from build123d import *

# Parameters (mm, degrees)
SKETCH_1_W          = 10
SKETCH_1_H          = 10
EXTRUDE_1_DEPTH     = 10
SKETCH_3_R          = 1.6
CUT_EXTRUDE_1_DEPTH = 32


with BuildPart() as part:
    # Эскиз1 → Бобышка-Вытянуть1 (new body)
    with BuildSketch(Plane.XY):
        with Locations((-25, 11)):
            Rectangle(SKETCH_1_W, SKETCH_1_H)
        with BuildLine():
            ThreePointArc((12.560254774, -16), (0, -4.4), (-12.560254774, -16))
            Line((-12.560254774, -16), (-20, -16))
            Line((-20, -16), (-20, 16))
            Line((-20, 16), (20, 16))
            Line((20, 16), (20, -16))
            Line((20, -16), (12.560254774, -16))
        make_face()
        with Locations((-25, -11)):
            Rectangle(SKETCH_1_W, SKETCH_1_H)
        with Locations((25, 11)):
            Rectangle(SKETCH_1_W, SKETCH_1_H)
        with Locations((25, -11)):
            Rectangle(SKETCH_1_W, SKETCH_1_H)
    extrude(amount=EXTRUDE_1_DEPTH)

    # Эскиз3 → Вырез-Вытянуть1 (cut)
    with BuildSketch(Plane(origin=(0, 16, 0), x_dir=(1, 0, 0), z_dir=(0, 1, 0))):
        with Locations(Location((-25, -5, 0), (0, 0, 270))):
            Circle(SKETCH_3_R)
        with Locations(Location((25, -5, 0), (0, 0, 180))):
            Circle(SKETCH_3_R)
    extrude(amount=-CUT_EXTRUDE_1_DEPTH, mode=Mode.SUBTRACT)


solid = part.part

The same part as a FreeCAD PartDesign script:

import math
import FreeCAD as App
import Part
import Sketcher

V = App.Vector

doc = App.newDocument("Part")
body = doc.addObject("PartDesign::Body", "Body")

sketch1 = body.newObject("Sketcher::SketchObject", "Sketch")
sketch1.AttachmentSupport = (doc.getObject("XY_Plane"), [""])
sketch1.MapMode = "FlatFace"
sketch1.addGeometry(Part.LineSegment(V(-30, 16, 0), V(-30, 6, 0)), False)
sketch1.addGeometry(Part.LineSegment(V(-30, 6, 0), V(-20, 6, 0)), False)
sketch1.addGeometry(Part.LineSegment(V(-20, 6, 0), V(-20, -6, 0)), False)
sketch1.addGeometry(Part.LineSegment(V(-20, -6, 0), V(-30, -6, 0)), False)
sketch1.addGeometry(Part.LineSegment(V(-30, -6, 0), V(-30, -16, 0)), False)
sketch1.addGeometry(Part.LineSegment(V(-30, -16, 0), V(-13, -16, 0)), False)
sketch1.addGeometry(Part.ArcOfCircle(Part.Circle(V(0, -17, 0), V(0, 0, 1), 13), math.radians(5), math.radians(175)), False)
sketch1.addGeometry(Part.LineSegment(V(13, -16, 0), V(30, -16, 0)), False)
sketch1.addGeometry(Part.LineSegment(V(30, -16, 0), V(30, -6, 0)), False)
sketch1.addGeometry(Part.LineSegment(V(30, -6, 0), V(20, -6, 0)), False)
sketch1.addGeometry(Part.LineSegment(V(20, -6, 0), V(20, 6, 0)), False)
sketch1.addGeometry(Part.LineSegment(V(20, 6, 0), V(30, 6, 0)), False)
sketch1.addGeometry(Part.LineSegment(V(30, 6, 0), V(30, 16, 0)), False)
sketch1.addGeometry(Part.LineSegment(V(30, 16, 0), V(-30, 16, 0)), False)
sketch1.addConstraint(Sketcher.Constraint("Coincident", 0, 2, 1, 1))
sketch1.addConstraint(Sketcher.Constraint("Coincident", 1, 2, 2, 1))
sketch1.addConstraint(Sketcher.Constraint("Coincident", 2, 2, 3, 1))
sketch1.addConstraint(Sketcher.Constraint("Coincident", 3, 2, 4, 1))
sketch1.addConstraint(Sketcher.Constraint("Coincident", 4, 2, 5, 1))
sketch1.addConstraint(Sketcher.Constraint("Coincident", 5, 2, 6, 2))
sketch1.addConstraint(Sketcher.Constraint("Coincident", 6, 1, 7, 1))
sketch1.addConstraint(Sketcher.Constraint("Coincident", 7, 2, 8, 1))
sketch1.addConstraint(Sketcher.Constraint("Coincident", 8, 2, 9, 1))
sketch1.addConstraint(Sketcher.Constraint("Coincident", 9, 2, 10, 1))
sketch1.addConstraint(Sketcher.Constraint("Coincident", 10, 2, 11, 1))
sketch1.addConstraint(Sketcher.Constraint("Coincident", 11, 2, 12, 1))
sketch1.addConstraint(Sketcher.Constraint("Coincident", 12, 2, 13, 1))
sketch1.addConstraint(Sketcher.Constraint("Coincident", 13, 2, 0, 1))
sketch1.addConstraint(Sketcher.Constraint("Vertical", 0))
sketch1.addConstraint(Sketcher.Constraint("Horizontal", 1))
sketch1.addConstraint(Sketcher.Constraint("Vertical", 2))
sketch1.addConstraint(Sketcher.Constraint("Horizontal", 3))
sketch1.addConstraint(Sketcher.Constraint("Vertical", 4))
sketch1.addConstraint(Sketcher.Constraint("Horizontal", 5))
sketch1.addConstraint(Sketcher.Constraint("Horizontal", 7))
sketch1.addConstraint(Sketcher.Constraint("Vertical", 8))
sketch1.addConstraint(Sketcher.Constraint("Horizontal", 9))
sketch1.addConstraint(Sketcher.Constraint("Vertical", 10))
sketch1.addConstraint(Sketcher.Constraint("Horizontal", 11))
sketch1.addConstraint(Sketcher.Constraint("Vertical", 12))
sketch1.addConstraint(Sketcher.Constraint("Horizontal", 13))
sketch1.addConstraint(Sketcher.Constraint("Symmetric", 0, 2, 8, 2, -1, 1))
sketch1.addConstraint(Sketcher.Constraint("Symmetric", 2, 2, 10, 2, -1, 1))
sketch1.addConstraint(Sketcher.Constraint("Symmetric", 4, 2, 12, 2, -1, 1))
sketch1.addConstraint(Sketcher.Constraint("Symmetric", 5, 2, 6, 1, -2))
sketch1.addConstraint(Sketcher.Constraint("Symmetric", 3, 2, 8, 2, -2))
sketch1.addConstraint(Sketcher.Constraint("Equal", 11, 0))
sketch1.addConstraint(Sketcher.Constraint("Radius", 6, 12.6))
sketch1.addConstraint(Sketcher.Constraint("DistanceX", 1, 1, 1, 2, 10.0))
sketch1.addConstraint(Sketcher.Constraint("DistanceX", 13, 2, 13, 1, 60.0))
sketch1.addConstraint(Sketcher.Constraint("DistanceY", 2, 2, 2, 1, 12.0))
sketch1.addConstraint(Sketcher.Constraint("DistanceY", 6, 3, -1, 1, 17.0))
pad1 = body.newObject("PartDesign::Pad", "Pad")
pad1.Profile = sketch1
pad1.Length = 10

sketch2 = body.newObject("Sketcher::SketchObject", "Sketch001")
sketch2.AttachmentSupport = (doc.getObject("XZ_Plane"), [""])
sketch2.MapMode = "FlatFace"
sketch2.AttachmentOffset = App.Placement(V(0, 0, -16), App.Rotation())
sketch2.addGeometry(Part.Circle(V(-25, 5, 0), V(0, 0, 1), 1.6), False)
sketch2.addGeometry(Part.Circle(V(25, 5, 0), V(0, 0, 1), 1.6), False)
sketch2.addConstraint(Sketcher.Constraint("Equal", 0, 1))
sketch2.addConstraint(Sketcher.Constraint("Symmetric", 0, 3, 1, 3, -2))
sketch2.addConstraint(Sketcher.Constraint("Diameter", 0, 3.2))
sketch2.addConstraint(Sketcher.Constraint("DistanceX", 0, 3, -1, 1, 25.0))
sketch2.addConstraint(Sketcher.Constraint("DistanceY", -1, 1, 0, 3, 5.0))
pocket1 = body.newObject("PartDesign::Pocket", "Pocket")
pocket1.Profile = sketch2
pocket1.Length = 32
pocket1.Reversed = True

doc.recompute()
